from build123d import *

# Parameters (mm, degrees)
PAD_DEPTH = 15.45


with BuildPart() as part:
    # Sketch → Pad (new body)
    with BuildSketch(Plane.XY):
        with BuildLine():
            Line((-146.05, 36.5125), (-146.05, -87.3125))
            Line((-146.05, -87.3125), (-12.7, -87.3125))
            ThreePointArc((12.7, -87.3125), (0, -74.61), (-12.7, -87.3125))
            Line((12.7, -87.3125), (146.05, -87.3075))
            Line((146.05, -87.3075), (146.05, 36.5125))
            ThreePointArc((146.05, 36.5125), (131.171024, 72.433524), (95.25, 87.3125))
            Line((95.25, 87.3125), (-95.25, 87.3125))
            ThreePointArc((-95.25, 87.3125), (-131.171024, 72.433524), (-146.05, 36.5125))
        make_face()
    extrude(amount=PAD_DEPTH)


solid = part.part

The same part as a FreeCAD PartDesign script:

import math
import FreeCAD as App
import Part
import Sketcher
from FreeCAD import Vector
Q = App.Units.Quantity

doc = App.newDocument("Part")
body = doc.addObject("PartDesign::Body", "Body")

# Sketch on XY plane
sketch1 = body.newObject("Sketcher::SketchObject", "Sketch")
sketch1.AttachmentSupport = (doc.getObject("XY_Plane"), [""])
sketch1.MapMode = "FlatFace"
sketch1.addGeometry([
    Part.LineSegment(Vector(-146, 37, 0), Vector(-146, -87, 0)),  # 0
    Part.LineSegment(Vector(-146, -87, 0), Vector(-13, -87, 0)),  # 1
    Part.ArcOfCircle(Part.Circle(Vector(0, -87, 0), Vector(0, 0, 1), 13), math.radians(0), math.radians(180)),  # 2
    Part.LineSegment(Vector(13, -87, 0), Vector(146, -87, 0)),  # 3
    Part.LineSegment(Vector(146, -87, 0), Vector(146, 37, 0)),  # 4
    Part.ArcOfCircle(Part.Circle(Vector(95, 37, 0), Vector(0, 0, 1), 51), math.radians(0), math.radians(90)),  # 5
    Part.LineSegment(Vector(95, 87, 0), Vector(-95, 87, 0)),  # 6
    Part.ArcOfCircle(Part.Circle(Vector(-95, 37, 0), Vector(0, 0, 1), 51), math.radians(90), math.radians(180)),  # 7
], False)
sketch1.addConstraint([
    Sketcher.Constraint("Coincident", 0, 2, 1, 1),
    Sketcher.Constraint("Coincident", 1, 2, 2, 2),
    Sketcher.Constraint("Coincident", 2, 1, 3, 1),
    Sketcher.Constraint("Coincident", 3, 2, 4, 1),
    Sketcher.Constraint("Tangent", 4, 2, 5, 1),
    Sketcher.Constraint("Tangent", 5, 2, 6, 1),
    Sketcher.Constraint("Tangent", 6, 2, 7, 1),
    Sketcher.Constraint("Tangent", 7, 2, 0, 1),
    Sketcher.Constraint("Vertical", 0),
    Sketcher.Constraint("Horizontal", 1),
    Sketcher.Constraint("Vertical", 4),
    Sketcher.Constraint("Horizontal", 6),
    Sketcher.Constraint("Equal", 5, 7),
    Sketcher.Constraint("Symmetric", 1, 2, 2, 1, -2),
    Sketcher.Constraint("Radius", 5, Q("2.0000001 in")),
    Sketcher.Constraint("Radius", 2, Q("0.5 in")),
    Sketcher.Constraint("DistanceX", 6, 2, 6, 1, Q("7.5 in")),
    Sketcher.Constraint("DistanceX", 1, 1, 1, 2, Q("5.25 in")),
    Sketcher.Constraint("DistanceY", 0, 2, 0, 1, Q("4.875 in")),
    Sketcher.Constraint("DistanceY", -1, 1, 5, 3, Q("1.4374999 in")),
    Sketcher.Constraint("DistanceY", 4, 1, 4, 2, Q("123.82 mm")),
    Sketcher.Constraint("DistanceY", 2, 3, -1, 1, Q("87.31 mm")),
])
pad1 = body.newObject("PartDesign::Pad", "Pad")
pad1.Profile = sketch1
pad1.Length = 15.45

doc.recompute()
